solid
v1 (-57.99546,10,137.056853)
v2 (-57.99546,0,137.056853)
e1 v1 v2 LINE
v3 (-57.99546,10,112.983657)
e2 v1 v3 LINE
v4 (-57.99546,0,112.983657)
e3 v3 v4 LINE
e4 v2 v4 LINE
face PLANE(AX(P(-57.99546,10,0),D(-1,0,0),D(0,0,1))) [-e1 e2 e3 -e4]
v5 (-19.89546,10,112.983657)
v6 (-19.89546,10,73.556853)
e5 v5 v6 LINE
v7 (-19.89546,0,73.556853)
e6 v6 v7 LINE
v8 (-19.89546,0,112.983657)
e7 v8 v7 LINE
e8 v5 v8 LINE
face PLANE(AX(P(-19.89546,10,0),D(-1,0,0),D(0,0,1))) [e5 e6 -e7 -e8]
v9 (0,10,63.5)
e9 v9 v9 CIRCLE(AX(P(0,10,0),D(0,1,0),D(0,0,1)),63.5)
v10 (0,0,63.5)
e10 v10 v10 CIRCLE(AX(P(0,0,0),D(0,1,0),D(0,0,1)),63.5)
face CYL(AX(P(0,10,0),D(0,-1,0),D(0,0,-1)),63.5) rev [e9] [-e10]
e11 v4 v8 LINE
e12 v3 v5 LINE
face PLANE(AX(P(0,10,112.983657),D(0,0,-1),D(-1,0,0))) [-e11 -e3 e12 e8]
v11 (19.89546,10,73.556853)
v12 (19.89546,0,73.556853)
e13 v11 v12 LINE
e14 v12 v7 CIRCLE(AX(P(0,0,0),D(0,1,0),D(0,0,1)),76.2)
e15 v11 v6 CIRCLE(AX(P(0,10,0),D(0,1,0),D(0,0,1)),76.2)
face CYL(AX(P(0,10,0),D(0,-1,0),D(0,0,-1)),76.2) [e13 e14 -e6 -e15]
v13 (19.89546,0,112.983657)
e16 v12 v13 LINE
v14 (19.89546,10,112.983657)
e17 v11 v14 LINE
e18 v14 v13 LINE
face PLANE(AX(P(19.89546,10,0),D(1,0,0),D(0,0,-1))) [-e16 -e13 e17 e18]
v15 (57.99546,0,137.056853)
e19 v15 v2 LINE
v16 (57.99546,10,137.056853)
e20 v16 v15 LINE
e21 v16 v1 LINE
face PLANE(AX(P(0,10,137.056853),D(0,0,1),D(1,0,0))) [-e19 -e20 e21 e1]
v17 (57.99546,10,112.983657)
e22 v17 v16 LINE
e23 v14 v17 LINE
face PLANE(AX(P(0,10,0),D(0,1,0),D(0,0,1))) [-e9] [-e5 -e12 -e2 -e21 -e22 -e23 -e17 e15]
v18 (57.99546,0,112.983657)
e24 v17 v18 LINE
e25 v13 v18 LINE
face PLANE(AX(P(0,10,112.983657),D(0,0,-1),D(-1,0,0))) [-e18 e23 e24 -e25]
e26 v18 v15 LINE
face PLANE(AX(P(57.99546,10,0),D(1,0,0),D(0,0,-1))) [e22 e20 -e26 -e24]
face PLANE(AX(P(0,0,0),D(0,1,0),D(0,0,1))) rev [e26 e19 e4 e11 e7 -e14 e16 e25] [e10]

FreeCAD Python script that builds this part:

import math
import FreeCAD as App
import Part
import Sketcher

V = App.Vector
Q = App.Units.Quantity

doc = App.newDocument("Part")
body = doc.addObject("PartDesign::Body", "Body")

# Sketch on XZ plane
sketch1 = doc.addObject("Sketcher::SketchObject", "Sketch")
body.addObject(sketch1)
sketch1.AttachmentSupport = (doc.XZ_Plane, [""])
sketch1.MapMode = "FlatFace"
sketch1.addGeometry([
    Part.ArcOfCircle(Part.Circle(V(0, 0, 0), V(0, 0, 1), 76), math.radians(105), math.radians(435)),  # 0
    Part.LineSegment(V(-20, 74, 0), V(-20, 113, 0)),  # 1
    Part.LineSegment(V(-20, 113, 0), V(-58, 113, 0)),  # 2
    Part.LineSegment(V(-58, 113, 0), V(-58, 137, 0)),  # 3
    Part.LineSegment(V(-58, 137, 0), V(58, 137, 0)),  # 4
    Part.LineSegment(V(58, 137, 0), V(58, 113, 0)),  # 5
    Part.LineSegment(V(58, 113, 0), V(20, 113, 0)),  # 6
    Part.LineSegment(V(20, 113, 0), V(20, 74, 0)),  # 7
    Part.Circle(V(0, 0, 0), V(0, 0, 1), 64),  # 8
], False)
sketch1.addConstraint([
    Sketcher.Constraint("Coincident", 0, 1, 1, 1),
    Sketcher.Constraint("Coincident", 1, 2, 2, 1),
    Sketcher.Constraint("Coincident", 2, 2, 3, 1),
    Sketcher.Constraint("Coincident", 3, 2, 4, 1),
    Sketcher.Constraint("Coincident", 4, 2, 5, 1),
    Sketcher.Constraint("Coincident", 5, 2, 6, 1),
    Sketcher.Constraint("Coincident", 6, 2, 7, 1),
    Sketcher.Constraint("Coincident", 7, 2, 0, 2),
    Sketcher.Constraint("Vertical", 1),
    Sketcher.Constraint("Horizontal", 2),
    Sketcher.Constraint("Vertical", 3),
    Sketcher.Constraint("Horizontal", 4),
    Sketcher.Constraint("Vertical", 5),
    Sketcher.Constraint("Horizontal", 6),
    Sketcher.Constraint("Vertical", 7),
    Sketcher.Constraint("Coincident", 0, 3, -1, 1),
    Sketcher.Constraint("Coincident", 8, 3, -1, 1),
    Sketcher.Constraint("Symmetric", 2, 2, 5, 2, -2),
    Sketcher.Constraint("Horizontal", 0, 1, 7, 2),
    Sketcher.Constraint("Diameter", 8, Q("5 in")),
    Sketcher.Constraint("Radius", 0, Q("3 in")),
    Sketcher.Constraint("DistanceX", 2, 2, 2, 1, Q("1.5 in")),
    Sketcher.Constraint("DistanceY", 0, 1, 3, 2, Q("2.5 in")),
    Sketcher.Constraint("DistanceX", 4, 1, 4, 2, 115.99092),
    Sketcher.Constraint("DistanceY", 1, 1, 1, 2, 39.426804),
])
pad1 = doc.addObject("PartDesign::Pad", "Pad")
body.addObject(pad1)
pad1.Profile = sketch1
pad1.Length = 10
pad1.Reversed = True

doc.recompute()
